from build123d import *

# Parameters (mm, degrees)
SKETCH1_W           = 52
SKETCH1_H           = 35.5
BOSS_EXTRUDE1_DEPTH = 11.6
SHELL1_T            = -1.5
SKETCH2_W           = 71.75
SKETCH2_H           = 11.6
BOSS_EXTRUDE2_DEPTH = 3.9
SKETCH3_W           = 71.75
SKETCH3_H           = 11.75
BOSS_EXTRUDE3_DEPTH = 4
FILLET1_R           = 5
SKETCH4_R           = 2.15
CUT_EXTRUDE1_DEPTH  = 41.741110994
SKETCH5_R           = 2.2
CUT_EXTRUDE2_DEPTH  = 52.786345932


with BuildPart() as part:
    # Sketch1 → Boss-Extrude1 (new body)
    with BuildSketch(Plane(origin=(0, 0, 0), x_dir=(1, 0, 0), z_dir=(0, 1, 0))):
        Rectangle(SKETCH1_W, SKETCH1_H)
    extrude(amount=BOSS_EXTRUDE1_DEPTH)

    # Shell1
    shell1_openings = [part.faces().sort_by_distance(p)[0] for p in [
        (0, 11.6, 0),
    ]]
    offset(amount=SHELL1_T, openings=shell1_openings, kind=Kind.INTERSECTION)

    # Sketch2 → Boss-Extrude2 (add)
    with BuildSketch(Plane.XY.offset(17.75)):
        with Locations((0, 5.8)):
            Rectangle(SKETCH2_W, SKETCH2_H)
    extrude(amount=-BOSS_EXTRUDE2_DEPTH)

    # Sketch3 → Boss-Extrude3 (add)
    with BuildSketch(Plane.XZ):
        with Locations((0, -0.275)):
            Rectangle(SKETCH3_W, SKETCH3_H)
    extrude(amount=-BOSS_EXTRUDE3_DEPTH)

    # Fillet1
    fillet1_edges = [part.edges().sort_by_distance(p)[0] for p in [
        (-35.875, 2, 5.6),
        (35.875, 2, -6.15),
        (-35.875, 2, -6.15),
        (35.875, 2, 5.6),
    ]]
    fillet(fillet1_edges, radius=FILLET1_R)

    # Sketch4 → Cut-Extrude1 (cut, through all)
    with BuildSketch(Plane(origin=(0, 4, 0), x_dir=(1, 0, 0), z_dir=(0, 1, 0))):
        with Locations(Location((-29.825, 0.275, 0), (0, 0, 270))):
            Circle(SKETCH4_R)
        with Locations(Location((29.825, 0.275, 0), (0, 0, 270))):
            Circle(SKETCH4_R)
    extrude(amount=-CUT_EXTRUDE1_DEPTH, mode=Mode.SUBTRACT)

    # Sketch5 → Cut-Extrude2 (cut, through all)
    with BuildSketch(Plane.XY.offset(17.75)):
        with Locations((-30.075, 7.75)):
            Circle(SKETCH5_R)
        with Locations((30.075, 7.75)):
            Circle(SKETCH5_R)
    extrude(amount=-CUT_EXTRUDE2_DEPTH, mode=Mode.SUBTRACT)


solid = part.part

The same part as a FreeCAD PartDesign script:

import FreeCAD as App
import Part
import Sketcher

V = App.Vector


def edges_at(feature, points):
    """Names of the edges that pass closest to the given points."""
    edges = feature.Shape.Edges
    near = lambda p: min(range(len(edges)), key=lambda i: edges[i].distToShape(Part.Vertex(*p))[0])
    return sorted({f"Edge{near(p) + 1}" for p in points})


def faces_at(feature, points):
    """Names of the faces that lie closest to the given points."""
    faces = feature.Shape.Faces
    near = lambda p: min(range(len(faces)), key=lambda i: faces[i].distToShape(Part.Vertex(*p))[0])
    return sorted({f"Face{near(p) + 1}" for p in points})

doc = App.newDocument("Part")
body = doc.addObject("PartDesign::Body", "Body")

sketch1 = doc.addObject("Sketcher::SketchObject", "Sketch")
body.addObject(sketch1)
sketch1.AttachmentSupport = (doc.XZ_Plane, [""])
sketch1.MapMode = "FlatFace"
sketch1.addGeometry(Part.LineSegment(V(-26, -18, 0), V(-26, 18, 0)), False)
sketch1.addGeometry(Part.LineSegment(V(-26, 18, 0), V(26, 18, 0)), False)
sketch1.addGeometry(Part.LineSegment(V(26, 18, 0), V(26, -18, 0)), False)
sketch1.addGeometry(Part.LineSegment(V(26, -18, 0), V(-26, -18, 0)), False)
sketch1.addConstraint(Sketcher.Constraint("Coincident", 0, 2, 1, 1))
sketch1.addConstraint(Sketcher.Constraint("Coincident", 1, 2, 2, 1))
sketch1.addConstraint(Sketcher.Constraint("Coincident", 2, 2, 3, 1))
sketch1.addConstraint(Sketcher.Constraint("Coincident", 3, 2, 0, 1))
sketch1.addConstraint(Sketcher.Constraint("Vertical", 0))
sketch1.addConstraint(Sketcher.Constraint("Horizontal", 1))
sketch1.addConstraint(Sketcher.Constraint("Vertical", 2))
sketch1.addConstraint(Sketcher.Constraint("Horizontal", 3))
sketch1.addConstraint(Sketcher.Constraint("Symmetric", 0, 2, 2, 2, -1, 1))
sketch1.addConstraint(Sketcher.Constraint("DistanceX", 1, 1, 1, 2, 52.0))
sketch1.addConstraint(Sketcher.Constraint("DistanceY", 0, 1, 0, 2, 35.5))
pad1 = doc.addObject("PartDesign::Pad", "Pad")
body.addObject(pad1)
pad1.Profile = sketch1
pad1.Length = 11.6
pad1.Reversed = True
doc.recompute()

thickness = doc.addObject("PartDesign::Thickness", "Thickness")
body.addObject(thickness)
thickness.Base = (pad1, faces_at(pad1, [(0, 11.6, 0)]))
thickness.Value = 1.5
thickness.Reversed = True
thickness.Join = "Intersection"

sketch2 = doc.addObject("Sketcher::SketchObject", "Sketch001")
body.addObject(sketch2)
sketch2.AttachmentSupport = (doc.XY_Plane, [""])
sketch2.MapMode = "FlatFace"
sketch2.AttachmentOffset = App.Placement(V(0, 0, 17.75), App.Rotation())
sketch2.addGeometry(Part.LineSegment(V(-36, 12, 0), V(-36, 0, 0)), False)
sketch2.addGeometry(Part.LineSegment(V(-36, 0, 0), V(36, 0, 0)), False)
sketch2.addGeometry(Part.LineSegment(V(36, 0, 0), V(36, 12, 0)), False)
sketch2.addGeometry(Part.LineSegment(V(36, 12, 0), V(-36, 12, 0)), False)
sketch2.addConstraint(Sketcher.Constraint("Coincident", 0, 2, 1, 1))
sketch2.addConstraint(Sketcher.Constraint("Coincident", 1, 2, 2, 1))
sketch2.addConstraint(Sketcher.Constraint("Coincident", 2, 2, 3, 1))
sketch2.addConstraint(Sketcher.Constraint("Coincident", 3, 2, 0, 1))
sketch2.addConstraint(Sketcher.Constraint("Vertical", 0))
sketch2.addConstraint(Sketcher.Constraint("Horizontal", 1))
sketch2.addConstraint(Sketcher.Constraint("Vertical", 2))
sketch2.addConstraint(Sketcher.Constraint("Horizontal", 3))
sketch2.addConstraint(Sketcher.Constraint("Symmetric", 0, 2, 1, 2, -1, 1))
sketch2.addConstraint(Sketcher.Constraint("DistanceY", 0, 2, 0, 1, 11.6))
sketch2.addConstraint(Sketcher.Constraint("DistanceX", 1, 1, 1, 2, 71.75))
pad2 = doc.addObject("PartDesign::Pad", "Pad001")
body.addObject(pad2)
pad2.Profile = sketch2
pad2.Length = 3.9
pad2.Reversed = True

sketch3 = doc.addObject("Sketcher::SketchObject", "Sketch002")
body.addObject(sketch3)
sketch3.AttachmentSupport = (doc.XZ_Plane, [""])
sketch3.MapMode = "FlatFace"
sketch3.addGeometry(Part.LineSegment(V(-36, 6, 0), V(-36, -6, 0)), False)
sketch3.addGeometry(Part.LineSegment(V(-36, -6, 0), V(36, -6, 0)), False)
sketch3.addGeometry(Part.LineSegment(V(36, -6, 0), V(36, 6, 0)), False)
sketch3.addGeometry(Part.LineSegment(V(36, 6, 0), V(-36, 6, 0)), False)
sketch3.addConstraint(Sketcher.Constraint("Coincident", 0, 2, 1, 1))
sketch3.addConstraint(Sketcher.Constraint("Coincident", 1, 2, 2, 1))
sketch3.addConstraint(Sketcher.Constraint("Coincident", 2, 2, 3, 1))
sketch3.addConstraint(Sketcher.Constraint("Coincident", 3, 2, 0, 1))
sketch3.addConstraint(Sketcher.Constraint("Vertical", 0))
sketch3.addConstraint(Sketcher.Constraint("Horizontal", 1))
sketch3.addConstraint(Sketcher.Constraint("Vertical", 2))
sketch3.addConstraint(Sketcher.Constraint("Horizontal", 3))
sketch3.addConstraint(Sketcher.Constraint("DistanceX", 1, 1, 1, 2, 71.75))
sketch3.addConstraint(Sketcher.Constraint("DistanceY", 0, 2, 0, 1, 11.75))
sketch3.addConstraint(Sketcher.Constraint("DistanceY", -1, 1, 2, 2, 5.6))
sketch3.addConstraint(Sketcher.Constraint("DistanceX", 0, 2, -1, 1, 35.875))
pad3 = doc.addObject("PartDesign::Pad", "Pad002")
body.addObject(pad3)
pad3.Profile = sketch3
pad3.Length = 4
pad3.Reversed = True
doc.recompute()

fillet = doc.addObject("PartDesign::Fillet", "Fillet")
body.addObject(fillet)
fillet.Base = (pad3, edges_at(pad3, [
    (-35.875, 2, 5.6),
    (35.875, 2, -6.15),
    (-35.875, 2, -6.15),
    (35.875, 2, 5.6),
]))
fillet.Radius = 5

sketch4 = doc.addObject("Sketcher::SketchObject", "Sketch003")
body.addObject(sketch4)
sketch4.AttachmentSupport = (doc.XZ_Plane, [""])
sketch4.MapMode = "FlatFace"
sketch4.AttachmentOffset = App.Placement(V(0, 0, -4), App.Rotation())
sketch4.addGeometry(Part.Circle(V(-29.8, -0.3, 0), V(0, 0, 1), 2.1), False)
sketch4.addGeometry(Part.Circle(V(29.8, -0.3, 0), V(0, 0, 1), 2.1), False)
sketch4.addConstraint(Sketcher.Constraint("Equal", 0, 1))
sketch4.addConstraint(Sketcher.Constraint("Symmetric", 0, 3, 1, 3, -2))
sketch4.addConstraint(Sketcher.Constraint("Diameter", 0, 4.3))
sketch4.addConstraint(Sketcher.Constraint("DistanceX", 0, 3, 1, 3, 59.65))
sketch4.addConstraint(Sketcher.Constraint("DistanceY", 0, 3, -1, 1, 0.275))
pocket1 = doc.addObject("PartDesign::Pocket", "Pocket")
body.addObject(pocket1)
pocket1.Profile = sketch4
pocket1.Type = "ThroughAll"
pocket1.Reversed = True

sketch5 = doc.addObject("Sketcher::SketchObject", "Sketch004")
body.addObject(sketch5)
sketch5.AttachmentSupport = (doc.XY_Plane, [""])
sketch5.MapMode = "FlatFace"
sketch5.AttachmentOffset = App.Placement(V(0, 0, 17.75), App.Rotation())
sketch5.addGeometry(Part.Circle(V(-30.1, 7.8, 0), V(0, 0, 1), 2.2), False)
sketch5.addGeometry(Part.Circle(V(30.1, 7.8, 0), V(0, 0, 1), 2.2), False)
sketch5.addConstraint(Sketcher.Constraint("Equal", 0, 1))
sketch5.addConstraint(Sketcher.Constraint("Symmetric", 0, 3, 1, 3, -2))
sketch5.addConstraint(Sketcher.Constraint("Diameter", 0, 4.4))
sketch5.addConstraint(Sketcher.Constraint("DistanceY", -1, 1, 0, 3, 7.75))
sketch5.addConstraint(Sketcher.Constraint("DistanceX", 0, 3, 1, 3, 60.15))
pocket2 = doc.addObject("PartDesign::Pocket", "Pocket001")
body.addObject(pocket2)
pocket2.Profile = sketch5
pocket2.Type = "ThroughAll"

doc.recompute()
